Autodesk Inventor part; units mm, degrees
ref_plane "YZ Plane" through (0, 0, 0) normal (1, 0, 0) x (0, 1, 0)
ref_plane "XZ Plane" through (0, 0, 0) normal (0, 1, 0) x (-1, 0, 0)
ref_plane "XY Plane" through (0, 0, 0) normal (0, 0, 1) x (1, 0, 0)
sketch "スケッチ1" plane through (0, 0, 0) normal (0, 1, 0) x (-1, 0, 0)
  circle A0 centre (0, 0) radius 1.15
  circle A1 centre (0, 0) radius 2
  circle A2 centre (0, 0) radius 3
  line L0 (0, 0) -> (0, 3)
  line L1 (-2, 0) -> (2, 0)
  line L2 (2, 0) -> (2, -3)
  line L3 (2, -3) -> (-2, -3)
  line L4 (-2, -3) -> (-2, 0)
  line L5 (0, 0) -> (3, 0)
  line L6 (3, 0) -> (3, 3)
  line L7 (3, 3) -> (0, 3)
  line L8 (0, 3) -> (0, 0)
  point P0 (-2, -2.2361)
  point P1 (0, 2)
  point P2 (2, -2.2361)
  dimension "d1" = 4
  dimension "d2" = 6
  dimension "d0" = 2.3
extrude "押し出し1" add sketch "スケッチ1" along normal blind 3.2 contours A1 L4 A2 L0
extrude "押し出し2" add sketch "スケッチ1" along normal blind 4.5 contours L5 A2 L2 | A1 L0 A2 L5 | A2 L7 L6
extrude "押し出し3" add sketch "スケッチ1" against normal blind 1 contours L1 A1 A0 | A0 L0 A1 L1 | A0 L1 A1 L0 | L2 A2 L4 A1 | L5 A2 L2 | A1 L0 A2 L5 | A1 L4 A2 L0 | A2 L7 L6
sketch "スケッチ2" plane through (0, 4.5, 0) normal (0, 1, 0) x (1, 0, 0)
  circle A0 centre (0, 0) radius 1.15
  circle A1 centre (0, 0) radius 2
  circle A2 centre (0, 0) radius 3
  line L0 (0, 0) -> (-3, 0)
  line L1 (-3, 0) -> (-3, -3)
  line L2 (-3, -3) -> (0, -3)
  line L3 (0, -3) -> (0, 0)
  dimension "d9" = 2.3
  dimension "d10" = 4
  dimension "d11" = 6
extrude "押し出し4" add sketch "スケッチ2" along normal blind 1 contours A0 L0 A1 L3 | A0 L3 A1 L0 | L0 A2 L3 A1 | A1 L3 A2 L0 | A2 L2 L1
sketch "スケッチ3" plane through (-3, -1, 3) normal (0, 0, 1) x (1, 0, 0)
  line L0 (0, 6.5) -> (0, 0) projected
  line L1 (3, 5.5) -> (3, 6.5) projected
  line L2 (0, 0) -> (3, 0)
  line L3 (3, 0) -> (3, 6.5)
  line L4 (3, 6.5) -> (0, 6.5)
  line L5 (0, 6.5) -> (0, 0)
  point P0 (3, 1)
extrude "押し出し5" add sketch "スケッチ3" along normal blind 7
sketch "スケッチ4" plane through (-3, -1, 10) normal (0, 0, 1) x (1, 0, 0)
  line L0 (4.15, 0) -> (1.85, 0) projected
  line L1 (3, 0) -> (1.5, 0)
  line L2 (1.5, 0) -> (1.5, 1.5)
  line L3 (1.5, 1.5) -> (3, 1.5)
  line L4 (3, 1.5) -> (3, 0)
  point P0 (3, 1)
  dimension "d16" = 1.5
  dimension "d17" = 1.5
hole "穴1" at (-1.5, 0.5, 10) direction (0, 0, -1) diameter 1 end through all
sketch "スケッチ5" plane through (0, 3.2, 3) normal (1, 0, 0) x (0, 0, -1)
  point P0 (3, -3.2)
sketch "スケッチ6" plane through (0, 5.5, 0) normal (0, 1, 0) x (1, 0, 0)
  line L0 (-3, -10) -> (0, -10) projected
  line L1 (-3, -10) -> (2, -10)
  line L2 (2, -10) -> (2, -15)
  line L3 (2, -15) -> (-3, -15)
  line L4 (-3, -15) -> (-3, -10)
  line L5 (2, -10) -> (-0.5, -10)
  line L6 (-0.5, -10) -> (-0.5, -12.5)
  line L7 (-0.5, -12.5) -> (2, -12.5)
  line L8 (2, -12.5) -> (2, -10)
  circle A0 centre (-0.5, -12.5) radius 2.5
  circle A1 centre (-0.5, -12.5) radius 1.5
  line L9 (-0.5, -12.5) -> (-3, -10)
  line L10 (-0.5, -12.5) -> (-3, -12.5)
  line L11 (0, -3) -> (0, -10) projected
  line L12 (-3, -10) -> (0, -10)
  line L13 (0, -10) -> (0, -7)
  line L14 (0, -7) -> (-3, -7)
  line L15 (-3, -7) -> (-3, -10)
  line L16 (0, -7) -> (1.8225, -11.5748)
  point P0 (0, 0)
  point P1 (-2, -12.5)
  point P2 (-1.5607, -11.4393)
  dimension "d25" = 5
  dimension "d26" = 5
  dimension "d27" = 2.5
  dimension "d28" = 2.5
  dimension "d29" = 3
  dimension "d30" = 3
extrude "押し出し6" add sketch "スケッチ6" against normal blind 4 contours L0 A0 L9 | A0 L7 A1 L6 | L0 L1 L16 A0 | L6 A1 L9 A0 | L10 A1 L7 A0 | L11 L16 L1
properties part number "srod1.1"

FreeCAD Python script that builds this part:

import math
import FreeCAD as App
import Part
import Sketcher
from FreeCAD import Vector
Q = App.Units.Quantity

doc = App.newDocument("Part")
body = doc.addObject("PartDesign::Body", "Body")

# Sketch on XZ plane
sketch1 = body.newObject("Sketcher::SketchObject", "Sketch")
sketch1.AttachmentSupport = (doc.getObject("XZ_Plane"), [""])
sketch1.MapMode = "FlatFace"
sketch1.addGeometry(Part.ArcOfCircle(Part.Circle(Vector(0, 0, 0), Vector(0, 0, 1), 2), math.radians(0), math.radians(90)), False)
sketch1.addGeometry(Part.LineSegment(Vector(0, 2, 0), Vector(0, 3, 0)), False)
sketch1.addGeometry(Part.ArcOfCircle(Part.Circle(Vector(0, 0, 0), Vector(0, 0, 1), 3), math.radians(-48.189685), math.radians(90)), False)
sketch1.addGeometry(Part.LineSegment(Vector(2, -2.236068, 0), Vector(2, 0, 0)), False)
sketch1.addConstraint(Sketcher.Constraint("Coincident", 0, 2, 1, 1))
sketch1.addConstraint(Sketcher.Constraint("Coincident", 1, 2, 2, 2))
sketch1.addConstraint(Sketcher.Constraint("Coincident", 2, 1, 3, 1))
sketch1.addConstraint(Sketcher.Constraint("Tangent", 3, 2, 0, 1))
sketch1.addConstraint(Sketcher.Constraint("Vertical", 1))
sketch1.addConstraint(Sketcher.Constraint("Vertical", 3))
sketch1.addConstraint(Sketcher.Constraint("Coincident", 0, 3, -1, 1))
sketch1.addConstraint(Sketcher.Constraint("Coincident", 2, 3, -1, 1))
sketch1.addConstraint(Sketcher.Constraint("PointOnObject", 0, 2, -2))
sketch1.addConstraint(Sketcher.Constraint("Radius", 0, Q("2 mm")))
sketch1.addConstraint(Sketcher.Constraint("Radius", 2, Q("3 mm")))
pad1 = body.newObject("PartDesign::Pad", "Pad")
pad1.Profile = sketch1
pad1.Length = 3.2
pad1.Reversed = True

# Sketch on XZ plane
sketch2 = body.newObject("Sketcher::SketchObject", "Sketch001")
sketch2.AttachmentSupport = (doc.getObject("XZ_Plane"), [""])
sketch2.MapMode = "FlatFace"
sketch2.addGeometry(Part.ArcOfCircle(Part.Circle(Vector(0, 0, 0), Vector(0, 0, 1), 3), math.radians(180), math.radians(228.189685)), False)
sketch2.addGeometry(Part.LineSegment(Vector(-3, 0, 0), Vector(-3, 3, 0)), False)
sketch2.addGeometry(Part.LineSegment(Vector(-3, 3, 0), Vector(0, 3, 0)), False)
sketch2.addGeometry(Part.LineSegment(Vector(0, 3, 0), Vector(0, 2, 0)), False)
sketch2.addGeometry(Part.ArcOfCircle(Part.Circle(Vector(0, 0, 0), Vector(0, 0, 1), 2), math.radians(90), math.radians(180)), False)
sketch2.addGeometry(Part.LineSegment(Vector(-2, 0, 0), Vector(-2, -2.236068, 0)), False)
sketch2.addConstraint(Sketcher.Constraint("Tangent", 0, 1, 1, 1))
sketch2.addConstraint(Sketcher.Constraint("Coincident", 1, 2, 2, 1))
sketch2.addConstraint(Sketcher.Constraint("Coincident", 2, 2, 3, 1))
sketch2.addConstraint(Sketcher.Constraint("Coincident", 3, 2, 4, 1))
sketch2.addConstraint(Sketcher.Constraint("Tangent", 4, 2, 5, 1))
sketch2.addConstraint(Sketcher.Constraint("Coincident", 5, 2, 0, 2))
sketch2.addConstraint(Sketcher.Constraint("Vertical", 1))
sketch2.addConstraint(Sketcher.Constraint("Horizontal", 2))
sketch2.addConstraint(Sketcher.Constraint("Vertical", 3))
sketch2.addConstraint(Sketcher.Constraint("Vertical", 5))
sketch2.addConstraint(Sketcher.Constraint("Coincident", 0, 3, -1, 1))
sketch2.addConstraint(Sketcher.Constraint("Coincident", 4, 3, -1, 1))
sketch2.addConstraint(Sketcher.Constraint("PointOnObject", 2, 2, -2))
sketch2.addConstraint(Sketcher.Constraint("Equal", 2, 1))
sketch2.addConstraint(Sketcher.Constraint("Radius", 0, Q("3 mm")))
sketch2.addConstraint(Sketcher.Constraint("Radius", 4, Q("2 mm")))
pad2 = body.newObject("PartDesign::Pad", "Pad001")
pad2.Profile = sketch2
pad2.Length = 4.5
pad2.Reversed = True

# Sketch on XZ plane
sketch3 = body.newObject("Sketcher::SketchObject", "Sketch002")
sketch3.AttachmentSupport = (doc.getObject("XZ_Plane"), [""])
sketch3.MapMode = "FlatFace"
sketch3.addGeometry(Part.LineSegment(Vector(-3, 0, 0), Vector(-3, 3, 0)), False)
sketch3.addGeometry(Part.LineSegment(Vector(-3, 3, 0), Vector(0, 3, 0)), False)
sketch3.addGeometry(Part.ArcOfCircle(Part.Circle(Vector(0, 0, 0), Vector(0, 0, 1), 3), math.radians(180), math.radians(450)), False)
sketch3.addGeometry(Part.Circle(Vector(0, 0, 0), Vector(0, 0, 1), 1.15), False)
sketch3.addConstraint(Sketcher.Constraint("Coincident", 0, 2, 1, 1))
sketch3.addConstraint(Sketcher.Constraint("Tangent", 1, 2, 2, 2))
sketch3.addConstraint(Sketcher.Constraint("Tangent", 2, 1, 0, 1))
sketch3.addConstraint(Sketcher.Constraint("Vertical", 0))
sketch3.addConstraint(Sketcher.Constraint("Horizontal", 1))
sketch3.addConstraint(Sketcher.Constraint("Coincident", 2, 3, -1, 1))
sketch3.addConstraint(Sketcher.Constraint("Coincident", 3, 3, -1, 1))
sketch3.addConstraint(Sketcher.Constraint("Radius", 2, Q("3 mm")))
sketch3.addConstraint(Sketcher.Constraint("Diameter", 3, Q("2.3 mm")))
pad3 = body.newObject("PartDesign::Pad", "Pad002")
pad3.Profile = sketch3
pad3.Length = 1

# Sketch on XZ plane
sketch4 = body.newObject("Sketcher::SketchObject", "Sketch003")
sketch4.AttachmentSupport = (doc.getObject("XZ_Plane"), [""])
sketch4.MapMode = "FlatFace"
sketch4.AttachmentOffset = App.Placement(Vector(0, 0, -4.5), App.Rotation())
sketch4.addGeometry(Part.LineSegment(Vector(-3, 0, 0), Vector(-3, 3, 0)), False)
sketch4.addGeometry(Part.LineSegment(Vector(-3, 3, 0), Vector(0, 3, 0)), False)
sketch4.addGeometry(Part.ArcOfCircle(Part.Circle(Vector(0, 0, 0), Vector(0, 0, 1), 3), math.radians(180), math.radians(450)), False)
sketch4.addGeometry(Part.Circle(Vector(0, 0, 0), Vector(0, 0, 1), 1.15), False)
sketch4.addConstraint(Sketcher.Constraint("Coincident", 0, 2, 1, 1))
sketch4.addConstraint(Sketcher.Constraint("Tangent", 1, 2, 2, 2))
sketch4.addConstraint(Sketcher.Constraint("Tangent", 2, 1, 0, 1))
sketch4.addConstraint(Sketcher.Constraint("Vertical", 0))
sketch4.addConstraint(Sketcher.Constraint("Horizontal", 1))
sketch4.addConstraint(Sketcher.Constraint("Coincident", 2, 3, -1, 1))
sketch4.addConstraint(Sketcher.Constraint("Coincident", 3, 3, -1, 1))
sketch4.addConstraint(Sketcher.Constraint("Radius", 2, Q("3 mm")))
sketch4.addConstraint(Sketcher.Constraint("Diameter", 3, Q("2.3 mm")))
pad4 = body.newObject("PartDesign::Pad", "Pad003")
pad4.Profile = sketch4
pad4.Length = 1
pad4.Reversed = True

# Sketch on XY plane
sketch5 = body.newObject("Sketcher::SketchObject", "Sketch004")
sketch5.AttachmentSupport = (doc.getObject("XY_Plane"), [""])
sketch5.MapMode = "FlatFace"
sketch5.AttachmentOffset = App.Placement(Vector(0, 0, 3), App.Rotation())
sketch5.addGeometry(Part.LineSegment(Vector(0, 5.5, 0), Vector(-3, 5.5, 0)), False)
sketch5.addGeometry(Part.LineSegment(Vector(-3, 5.5, 0), Vector(-3, -1, 0)), False)
sketch5.addGeometry(Part.LineSegment(Vector(-3, -1, 0), Vector(0, -1, 0)), False)
sketch5.addGeometry(Part.LineSegment(Vector(0, -1, 0), Vector(0, 5.5, 0)), False)
sketch5.addConstraint(Sketcher.Constraint("Coincident", 0, 2, 1, 1))
sketch5.addConstraint(Sketcher.Constraint("Coincident", 1, 2, 2, 1))
sketch5.addConstraint(Sketcher.Constraint("Coincident", 2, 2, 3, 1))
sketch5.addConstraint(Sketcher.Constraint("Coincident", 3, 2, 0, 1))
sketch5.addConstraint(Sketcher.Constraint("Horizontal", 0))
sketch5.addConstraint(Sketcher.Constraint("Vertical", 1))
sketch5.addConstraint(Sketcher.Constraint("Horizontal", 2))
sketch5.addConstraint(Sketcher.Constraint("Vertical", 3))
sketch5.addConstraint(Sketcher.Constraint("PointOnObject", 2, 2, -2))
sketch5.addConstraint(Sketcher.Constraint("DistanceX", 0, 2, 0, 1, Q("3 mm")))
sketch5.addConstraint(Sketcher.Constraint("DistanceY", 1, 2, 1, 1, Q("6.5 mm")))
sketch5.addConstraint(Sketcher.Constraint("DistanceY", 1, 2, -1, 1, Q("1 mm")))
pad5 = body.newObject("PartDesign::Pad", "Pad004")
pad5.Profile = sketch5
pad5.Length = 7

# Sketch on XY plane
sketch6 = body.newObject("Sketcher::SketchObject", "Sketch005")
sketch6.AttachmentSupport = (doc.getObject("XY_Plane"), [""])
sketch6.MapMode = "FlatFace"
sketch6.AttachmentOffset = App.Placement(Vector(0, 0, 10), App.Rotation())
sketch6.addGeometry(Part.Circle(Vector(-1.5, 0.5, 0), Vector(0, 0, 1), 0.5), False)
sketch6.addConstraint(Sketcher.Constraint("Diameter", 0, Q("1 mm")))
sketch6.addConstraint(Sketcher.Constraint("DistanceX", 0, 3, -1, 1, Q("1.5 mm")))
sketch6.addConstraint(Sketcher.Constraint("DistanceY", -1, 1, 0, 3, Q("0.5 mm")))
doc.recompute()
hole = body.newObject("PartDesign::Hole", "Hole")
hole.Profile = sketch6
hole.ThreadType = "None"
hole.Diameter = 1
hole.DepthType = "ThroughAll"

# Sketch on XZ plane
sketch7 = body.newObject("Sketcher::SketchObject", "Sketch006")
sketch7.AttachmentSupport = (doc.getObject("XZ_Plane"), [""])
sketch7.MapMode = "FlatFace"
sketch7.AttachmentOffset = App.Placement(Vector(0, 0, -5.5), App.Rotation())
sketch7.addGeometry(Part.LineSegment(Vector(-3, 10, 0), Vector(-1.56066, 11.43934, 0)), False)
sketch7.addGeometry(Part.ArcOfCircle(Part.Circle(Vector(-0.5, 12.5, 0), Vector(0, 0, 1), 1.5), math.radians(-135), math.radians(180)), False)
sketch7.addGeometry(Part.LineSegment(Vector(-2, 12.5, 0), Vector(-3, 12.5, 0)), False)
sketch7.addGeometry(Part.ArcOfCircle(Part.Circle(Vector(-0.5, 12.5, 0), Vector(0, 0, 1), 2.5), math.radians(-21.720549), math.radians(180)), False)
sketch7.addGeometry(Part.LineSegment(Vector(1.8225, 11.5748, 0), Vector(0, 7, 0)), False)
sketch7.addGeometry(Part.LineSegment(Vector(0, 7, 0), Vector(0, 10, 0)), False)
sketch7.addGeometry(Part.LineSegment(Vector(0, 10, 0), Vector(-3, 10, 0)), False)
sketch7.addConstraint(Sketcher.Constraint("Coincident", 0, 2, 1, 1))
sketch7.addConstraint(Sketcher.Constraint("Coincident", 1, 2, 2, 1))
sketch7.addConstraint(Sketcher.Constraint("Coincident", 2, 2, 3, 2))
sketch7.addConstraint(Sketcher.Constraint("Tangent", 3, 1, 4, 1))
sketch7.addConstraint(Sketcher.Constraint("Coincident", 4, 2, 5, 1))
sketch7.addConstraint(Sketcher.Constraint("Coincident", 5, 2, 6, 1))
sketch7.addConstraint(Sketcher.Constraint("Coincident", 6, 2, 0, 1))
sketch7.addConstraint(Sketcher.Constraint("Horizontal", 2))
sketch7.addConstraint(Sketcher.Constraint("Vertical", 5))
sketch7.addConstraint(Sketcher.Constraint("Horizontal", 6))
sketch7.addConstraint(Sketcher.Constraint("Coincident", 3, 3, 1, 3))
sketch7.addConstraint(Sketcher.Constraint("PointOnObject", 4, 2, -2))
sketch7.addConstraint(Sketcher.Constraint("Horizontal", 3, 3, 1, 2))
sketch7.addConstraint(Sketcher.Constraint("Vertical", 2, 2, 6, 2))
sketch7.addConstraint(Sketcher.Constraint("Equal", 6, 5))
sketch7.addConstraint(Sketcher.Constraint("Radius", 1, Q("1.5 mm")))
sketch7.addConstraint(Sketcher.Constraint("Radius", 3, Q("2.5 mm")))
sketch7.addConstraint(Sketcher.Constraint("DistanceX", 6, 2, 6, 1, Q("3 mm")))
sketch7.addConstraint(Sketcher.Constraint("DistanceY", 5, 2, 1, 3, Q("2.5 mm")))
sketch7.addConstraint(Sketcher.Constraint("Angle", 0, Q("45 deg")))
sketch7.addConstraint(Sketcher.Constraint("DistanceY", -1, 1, 4, 2, Q("7 mm")))
pad6 = body.newObject("PartDesign::Pad", "Pad005")
pad6.Profile = sketch7
pad6.Length = 4

doc.recompute()
